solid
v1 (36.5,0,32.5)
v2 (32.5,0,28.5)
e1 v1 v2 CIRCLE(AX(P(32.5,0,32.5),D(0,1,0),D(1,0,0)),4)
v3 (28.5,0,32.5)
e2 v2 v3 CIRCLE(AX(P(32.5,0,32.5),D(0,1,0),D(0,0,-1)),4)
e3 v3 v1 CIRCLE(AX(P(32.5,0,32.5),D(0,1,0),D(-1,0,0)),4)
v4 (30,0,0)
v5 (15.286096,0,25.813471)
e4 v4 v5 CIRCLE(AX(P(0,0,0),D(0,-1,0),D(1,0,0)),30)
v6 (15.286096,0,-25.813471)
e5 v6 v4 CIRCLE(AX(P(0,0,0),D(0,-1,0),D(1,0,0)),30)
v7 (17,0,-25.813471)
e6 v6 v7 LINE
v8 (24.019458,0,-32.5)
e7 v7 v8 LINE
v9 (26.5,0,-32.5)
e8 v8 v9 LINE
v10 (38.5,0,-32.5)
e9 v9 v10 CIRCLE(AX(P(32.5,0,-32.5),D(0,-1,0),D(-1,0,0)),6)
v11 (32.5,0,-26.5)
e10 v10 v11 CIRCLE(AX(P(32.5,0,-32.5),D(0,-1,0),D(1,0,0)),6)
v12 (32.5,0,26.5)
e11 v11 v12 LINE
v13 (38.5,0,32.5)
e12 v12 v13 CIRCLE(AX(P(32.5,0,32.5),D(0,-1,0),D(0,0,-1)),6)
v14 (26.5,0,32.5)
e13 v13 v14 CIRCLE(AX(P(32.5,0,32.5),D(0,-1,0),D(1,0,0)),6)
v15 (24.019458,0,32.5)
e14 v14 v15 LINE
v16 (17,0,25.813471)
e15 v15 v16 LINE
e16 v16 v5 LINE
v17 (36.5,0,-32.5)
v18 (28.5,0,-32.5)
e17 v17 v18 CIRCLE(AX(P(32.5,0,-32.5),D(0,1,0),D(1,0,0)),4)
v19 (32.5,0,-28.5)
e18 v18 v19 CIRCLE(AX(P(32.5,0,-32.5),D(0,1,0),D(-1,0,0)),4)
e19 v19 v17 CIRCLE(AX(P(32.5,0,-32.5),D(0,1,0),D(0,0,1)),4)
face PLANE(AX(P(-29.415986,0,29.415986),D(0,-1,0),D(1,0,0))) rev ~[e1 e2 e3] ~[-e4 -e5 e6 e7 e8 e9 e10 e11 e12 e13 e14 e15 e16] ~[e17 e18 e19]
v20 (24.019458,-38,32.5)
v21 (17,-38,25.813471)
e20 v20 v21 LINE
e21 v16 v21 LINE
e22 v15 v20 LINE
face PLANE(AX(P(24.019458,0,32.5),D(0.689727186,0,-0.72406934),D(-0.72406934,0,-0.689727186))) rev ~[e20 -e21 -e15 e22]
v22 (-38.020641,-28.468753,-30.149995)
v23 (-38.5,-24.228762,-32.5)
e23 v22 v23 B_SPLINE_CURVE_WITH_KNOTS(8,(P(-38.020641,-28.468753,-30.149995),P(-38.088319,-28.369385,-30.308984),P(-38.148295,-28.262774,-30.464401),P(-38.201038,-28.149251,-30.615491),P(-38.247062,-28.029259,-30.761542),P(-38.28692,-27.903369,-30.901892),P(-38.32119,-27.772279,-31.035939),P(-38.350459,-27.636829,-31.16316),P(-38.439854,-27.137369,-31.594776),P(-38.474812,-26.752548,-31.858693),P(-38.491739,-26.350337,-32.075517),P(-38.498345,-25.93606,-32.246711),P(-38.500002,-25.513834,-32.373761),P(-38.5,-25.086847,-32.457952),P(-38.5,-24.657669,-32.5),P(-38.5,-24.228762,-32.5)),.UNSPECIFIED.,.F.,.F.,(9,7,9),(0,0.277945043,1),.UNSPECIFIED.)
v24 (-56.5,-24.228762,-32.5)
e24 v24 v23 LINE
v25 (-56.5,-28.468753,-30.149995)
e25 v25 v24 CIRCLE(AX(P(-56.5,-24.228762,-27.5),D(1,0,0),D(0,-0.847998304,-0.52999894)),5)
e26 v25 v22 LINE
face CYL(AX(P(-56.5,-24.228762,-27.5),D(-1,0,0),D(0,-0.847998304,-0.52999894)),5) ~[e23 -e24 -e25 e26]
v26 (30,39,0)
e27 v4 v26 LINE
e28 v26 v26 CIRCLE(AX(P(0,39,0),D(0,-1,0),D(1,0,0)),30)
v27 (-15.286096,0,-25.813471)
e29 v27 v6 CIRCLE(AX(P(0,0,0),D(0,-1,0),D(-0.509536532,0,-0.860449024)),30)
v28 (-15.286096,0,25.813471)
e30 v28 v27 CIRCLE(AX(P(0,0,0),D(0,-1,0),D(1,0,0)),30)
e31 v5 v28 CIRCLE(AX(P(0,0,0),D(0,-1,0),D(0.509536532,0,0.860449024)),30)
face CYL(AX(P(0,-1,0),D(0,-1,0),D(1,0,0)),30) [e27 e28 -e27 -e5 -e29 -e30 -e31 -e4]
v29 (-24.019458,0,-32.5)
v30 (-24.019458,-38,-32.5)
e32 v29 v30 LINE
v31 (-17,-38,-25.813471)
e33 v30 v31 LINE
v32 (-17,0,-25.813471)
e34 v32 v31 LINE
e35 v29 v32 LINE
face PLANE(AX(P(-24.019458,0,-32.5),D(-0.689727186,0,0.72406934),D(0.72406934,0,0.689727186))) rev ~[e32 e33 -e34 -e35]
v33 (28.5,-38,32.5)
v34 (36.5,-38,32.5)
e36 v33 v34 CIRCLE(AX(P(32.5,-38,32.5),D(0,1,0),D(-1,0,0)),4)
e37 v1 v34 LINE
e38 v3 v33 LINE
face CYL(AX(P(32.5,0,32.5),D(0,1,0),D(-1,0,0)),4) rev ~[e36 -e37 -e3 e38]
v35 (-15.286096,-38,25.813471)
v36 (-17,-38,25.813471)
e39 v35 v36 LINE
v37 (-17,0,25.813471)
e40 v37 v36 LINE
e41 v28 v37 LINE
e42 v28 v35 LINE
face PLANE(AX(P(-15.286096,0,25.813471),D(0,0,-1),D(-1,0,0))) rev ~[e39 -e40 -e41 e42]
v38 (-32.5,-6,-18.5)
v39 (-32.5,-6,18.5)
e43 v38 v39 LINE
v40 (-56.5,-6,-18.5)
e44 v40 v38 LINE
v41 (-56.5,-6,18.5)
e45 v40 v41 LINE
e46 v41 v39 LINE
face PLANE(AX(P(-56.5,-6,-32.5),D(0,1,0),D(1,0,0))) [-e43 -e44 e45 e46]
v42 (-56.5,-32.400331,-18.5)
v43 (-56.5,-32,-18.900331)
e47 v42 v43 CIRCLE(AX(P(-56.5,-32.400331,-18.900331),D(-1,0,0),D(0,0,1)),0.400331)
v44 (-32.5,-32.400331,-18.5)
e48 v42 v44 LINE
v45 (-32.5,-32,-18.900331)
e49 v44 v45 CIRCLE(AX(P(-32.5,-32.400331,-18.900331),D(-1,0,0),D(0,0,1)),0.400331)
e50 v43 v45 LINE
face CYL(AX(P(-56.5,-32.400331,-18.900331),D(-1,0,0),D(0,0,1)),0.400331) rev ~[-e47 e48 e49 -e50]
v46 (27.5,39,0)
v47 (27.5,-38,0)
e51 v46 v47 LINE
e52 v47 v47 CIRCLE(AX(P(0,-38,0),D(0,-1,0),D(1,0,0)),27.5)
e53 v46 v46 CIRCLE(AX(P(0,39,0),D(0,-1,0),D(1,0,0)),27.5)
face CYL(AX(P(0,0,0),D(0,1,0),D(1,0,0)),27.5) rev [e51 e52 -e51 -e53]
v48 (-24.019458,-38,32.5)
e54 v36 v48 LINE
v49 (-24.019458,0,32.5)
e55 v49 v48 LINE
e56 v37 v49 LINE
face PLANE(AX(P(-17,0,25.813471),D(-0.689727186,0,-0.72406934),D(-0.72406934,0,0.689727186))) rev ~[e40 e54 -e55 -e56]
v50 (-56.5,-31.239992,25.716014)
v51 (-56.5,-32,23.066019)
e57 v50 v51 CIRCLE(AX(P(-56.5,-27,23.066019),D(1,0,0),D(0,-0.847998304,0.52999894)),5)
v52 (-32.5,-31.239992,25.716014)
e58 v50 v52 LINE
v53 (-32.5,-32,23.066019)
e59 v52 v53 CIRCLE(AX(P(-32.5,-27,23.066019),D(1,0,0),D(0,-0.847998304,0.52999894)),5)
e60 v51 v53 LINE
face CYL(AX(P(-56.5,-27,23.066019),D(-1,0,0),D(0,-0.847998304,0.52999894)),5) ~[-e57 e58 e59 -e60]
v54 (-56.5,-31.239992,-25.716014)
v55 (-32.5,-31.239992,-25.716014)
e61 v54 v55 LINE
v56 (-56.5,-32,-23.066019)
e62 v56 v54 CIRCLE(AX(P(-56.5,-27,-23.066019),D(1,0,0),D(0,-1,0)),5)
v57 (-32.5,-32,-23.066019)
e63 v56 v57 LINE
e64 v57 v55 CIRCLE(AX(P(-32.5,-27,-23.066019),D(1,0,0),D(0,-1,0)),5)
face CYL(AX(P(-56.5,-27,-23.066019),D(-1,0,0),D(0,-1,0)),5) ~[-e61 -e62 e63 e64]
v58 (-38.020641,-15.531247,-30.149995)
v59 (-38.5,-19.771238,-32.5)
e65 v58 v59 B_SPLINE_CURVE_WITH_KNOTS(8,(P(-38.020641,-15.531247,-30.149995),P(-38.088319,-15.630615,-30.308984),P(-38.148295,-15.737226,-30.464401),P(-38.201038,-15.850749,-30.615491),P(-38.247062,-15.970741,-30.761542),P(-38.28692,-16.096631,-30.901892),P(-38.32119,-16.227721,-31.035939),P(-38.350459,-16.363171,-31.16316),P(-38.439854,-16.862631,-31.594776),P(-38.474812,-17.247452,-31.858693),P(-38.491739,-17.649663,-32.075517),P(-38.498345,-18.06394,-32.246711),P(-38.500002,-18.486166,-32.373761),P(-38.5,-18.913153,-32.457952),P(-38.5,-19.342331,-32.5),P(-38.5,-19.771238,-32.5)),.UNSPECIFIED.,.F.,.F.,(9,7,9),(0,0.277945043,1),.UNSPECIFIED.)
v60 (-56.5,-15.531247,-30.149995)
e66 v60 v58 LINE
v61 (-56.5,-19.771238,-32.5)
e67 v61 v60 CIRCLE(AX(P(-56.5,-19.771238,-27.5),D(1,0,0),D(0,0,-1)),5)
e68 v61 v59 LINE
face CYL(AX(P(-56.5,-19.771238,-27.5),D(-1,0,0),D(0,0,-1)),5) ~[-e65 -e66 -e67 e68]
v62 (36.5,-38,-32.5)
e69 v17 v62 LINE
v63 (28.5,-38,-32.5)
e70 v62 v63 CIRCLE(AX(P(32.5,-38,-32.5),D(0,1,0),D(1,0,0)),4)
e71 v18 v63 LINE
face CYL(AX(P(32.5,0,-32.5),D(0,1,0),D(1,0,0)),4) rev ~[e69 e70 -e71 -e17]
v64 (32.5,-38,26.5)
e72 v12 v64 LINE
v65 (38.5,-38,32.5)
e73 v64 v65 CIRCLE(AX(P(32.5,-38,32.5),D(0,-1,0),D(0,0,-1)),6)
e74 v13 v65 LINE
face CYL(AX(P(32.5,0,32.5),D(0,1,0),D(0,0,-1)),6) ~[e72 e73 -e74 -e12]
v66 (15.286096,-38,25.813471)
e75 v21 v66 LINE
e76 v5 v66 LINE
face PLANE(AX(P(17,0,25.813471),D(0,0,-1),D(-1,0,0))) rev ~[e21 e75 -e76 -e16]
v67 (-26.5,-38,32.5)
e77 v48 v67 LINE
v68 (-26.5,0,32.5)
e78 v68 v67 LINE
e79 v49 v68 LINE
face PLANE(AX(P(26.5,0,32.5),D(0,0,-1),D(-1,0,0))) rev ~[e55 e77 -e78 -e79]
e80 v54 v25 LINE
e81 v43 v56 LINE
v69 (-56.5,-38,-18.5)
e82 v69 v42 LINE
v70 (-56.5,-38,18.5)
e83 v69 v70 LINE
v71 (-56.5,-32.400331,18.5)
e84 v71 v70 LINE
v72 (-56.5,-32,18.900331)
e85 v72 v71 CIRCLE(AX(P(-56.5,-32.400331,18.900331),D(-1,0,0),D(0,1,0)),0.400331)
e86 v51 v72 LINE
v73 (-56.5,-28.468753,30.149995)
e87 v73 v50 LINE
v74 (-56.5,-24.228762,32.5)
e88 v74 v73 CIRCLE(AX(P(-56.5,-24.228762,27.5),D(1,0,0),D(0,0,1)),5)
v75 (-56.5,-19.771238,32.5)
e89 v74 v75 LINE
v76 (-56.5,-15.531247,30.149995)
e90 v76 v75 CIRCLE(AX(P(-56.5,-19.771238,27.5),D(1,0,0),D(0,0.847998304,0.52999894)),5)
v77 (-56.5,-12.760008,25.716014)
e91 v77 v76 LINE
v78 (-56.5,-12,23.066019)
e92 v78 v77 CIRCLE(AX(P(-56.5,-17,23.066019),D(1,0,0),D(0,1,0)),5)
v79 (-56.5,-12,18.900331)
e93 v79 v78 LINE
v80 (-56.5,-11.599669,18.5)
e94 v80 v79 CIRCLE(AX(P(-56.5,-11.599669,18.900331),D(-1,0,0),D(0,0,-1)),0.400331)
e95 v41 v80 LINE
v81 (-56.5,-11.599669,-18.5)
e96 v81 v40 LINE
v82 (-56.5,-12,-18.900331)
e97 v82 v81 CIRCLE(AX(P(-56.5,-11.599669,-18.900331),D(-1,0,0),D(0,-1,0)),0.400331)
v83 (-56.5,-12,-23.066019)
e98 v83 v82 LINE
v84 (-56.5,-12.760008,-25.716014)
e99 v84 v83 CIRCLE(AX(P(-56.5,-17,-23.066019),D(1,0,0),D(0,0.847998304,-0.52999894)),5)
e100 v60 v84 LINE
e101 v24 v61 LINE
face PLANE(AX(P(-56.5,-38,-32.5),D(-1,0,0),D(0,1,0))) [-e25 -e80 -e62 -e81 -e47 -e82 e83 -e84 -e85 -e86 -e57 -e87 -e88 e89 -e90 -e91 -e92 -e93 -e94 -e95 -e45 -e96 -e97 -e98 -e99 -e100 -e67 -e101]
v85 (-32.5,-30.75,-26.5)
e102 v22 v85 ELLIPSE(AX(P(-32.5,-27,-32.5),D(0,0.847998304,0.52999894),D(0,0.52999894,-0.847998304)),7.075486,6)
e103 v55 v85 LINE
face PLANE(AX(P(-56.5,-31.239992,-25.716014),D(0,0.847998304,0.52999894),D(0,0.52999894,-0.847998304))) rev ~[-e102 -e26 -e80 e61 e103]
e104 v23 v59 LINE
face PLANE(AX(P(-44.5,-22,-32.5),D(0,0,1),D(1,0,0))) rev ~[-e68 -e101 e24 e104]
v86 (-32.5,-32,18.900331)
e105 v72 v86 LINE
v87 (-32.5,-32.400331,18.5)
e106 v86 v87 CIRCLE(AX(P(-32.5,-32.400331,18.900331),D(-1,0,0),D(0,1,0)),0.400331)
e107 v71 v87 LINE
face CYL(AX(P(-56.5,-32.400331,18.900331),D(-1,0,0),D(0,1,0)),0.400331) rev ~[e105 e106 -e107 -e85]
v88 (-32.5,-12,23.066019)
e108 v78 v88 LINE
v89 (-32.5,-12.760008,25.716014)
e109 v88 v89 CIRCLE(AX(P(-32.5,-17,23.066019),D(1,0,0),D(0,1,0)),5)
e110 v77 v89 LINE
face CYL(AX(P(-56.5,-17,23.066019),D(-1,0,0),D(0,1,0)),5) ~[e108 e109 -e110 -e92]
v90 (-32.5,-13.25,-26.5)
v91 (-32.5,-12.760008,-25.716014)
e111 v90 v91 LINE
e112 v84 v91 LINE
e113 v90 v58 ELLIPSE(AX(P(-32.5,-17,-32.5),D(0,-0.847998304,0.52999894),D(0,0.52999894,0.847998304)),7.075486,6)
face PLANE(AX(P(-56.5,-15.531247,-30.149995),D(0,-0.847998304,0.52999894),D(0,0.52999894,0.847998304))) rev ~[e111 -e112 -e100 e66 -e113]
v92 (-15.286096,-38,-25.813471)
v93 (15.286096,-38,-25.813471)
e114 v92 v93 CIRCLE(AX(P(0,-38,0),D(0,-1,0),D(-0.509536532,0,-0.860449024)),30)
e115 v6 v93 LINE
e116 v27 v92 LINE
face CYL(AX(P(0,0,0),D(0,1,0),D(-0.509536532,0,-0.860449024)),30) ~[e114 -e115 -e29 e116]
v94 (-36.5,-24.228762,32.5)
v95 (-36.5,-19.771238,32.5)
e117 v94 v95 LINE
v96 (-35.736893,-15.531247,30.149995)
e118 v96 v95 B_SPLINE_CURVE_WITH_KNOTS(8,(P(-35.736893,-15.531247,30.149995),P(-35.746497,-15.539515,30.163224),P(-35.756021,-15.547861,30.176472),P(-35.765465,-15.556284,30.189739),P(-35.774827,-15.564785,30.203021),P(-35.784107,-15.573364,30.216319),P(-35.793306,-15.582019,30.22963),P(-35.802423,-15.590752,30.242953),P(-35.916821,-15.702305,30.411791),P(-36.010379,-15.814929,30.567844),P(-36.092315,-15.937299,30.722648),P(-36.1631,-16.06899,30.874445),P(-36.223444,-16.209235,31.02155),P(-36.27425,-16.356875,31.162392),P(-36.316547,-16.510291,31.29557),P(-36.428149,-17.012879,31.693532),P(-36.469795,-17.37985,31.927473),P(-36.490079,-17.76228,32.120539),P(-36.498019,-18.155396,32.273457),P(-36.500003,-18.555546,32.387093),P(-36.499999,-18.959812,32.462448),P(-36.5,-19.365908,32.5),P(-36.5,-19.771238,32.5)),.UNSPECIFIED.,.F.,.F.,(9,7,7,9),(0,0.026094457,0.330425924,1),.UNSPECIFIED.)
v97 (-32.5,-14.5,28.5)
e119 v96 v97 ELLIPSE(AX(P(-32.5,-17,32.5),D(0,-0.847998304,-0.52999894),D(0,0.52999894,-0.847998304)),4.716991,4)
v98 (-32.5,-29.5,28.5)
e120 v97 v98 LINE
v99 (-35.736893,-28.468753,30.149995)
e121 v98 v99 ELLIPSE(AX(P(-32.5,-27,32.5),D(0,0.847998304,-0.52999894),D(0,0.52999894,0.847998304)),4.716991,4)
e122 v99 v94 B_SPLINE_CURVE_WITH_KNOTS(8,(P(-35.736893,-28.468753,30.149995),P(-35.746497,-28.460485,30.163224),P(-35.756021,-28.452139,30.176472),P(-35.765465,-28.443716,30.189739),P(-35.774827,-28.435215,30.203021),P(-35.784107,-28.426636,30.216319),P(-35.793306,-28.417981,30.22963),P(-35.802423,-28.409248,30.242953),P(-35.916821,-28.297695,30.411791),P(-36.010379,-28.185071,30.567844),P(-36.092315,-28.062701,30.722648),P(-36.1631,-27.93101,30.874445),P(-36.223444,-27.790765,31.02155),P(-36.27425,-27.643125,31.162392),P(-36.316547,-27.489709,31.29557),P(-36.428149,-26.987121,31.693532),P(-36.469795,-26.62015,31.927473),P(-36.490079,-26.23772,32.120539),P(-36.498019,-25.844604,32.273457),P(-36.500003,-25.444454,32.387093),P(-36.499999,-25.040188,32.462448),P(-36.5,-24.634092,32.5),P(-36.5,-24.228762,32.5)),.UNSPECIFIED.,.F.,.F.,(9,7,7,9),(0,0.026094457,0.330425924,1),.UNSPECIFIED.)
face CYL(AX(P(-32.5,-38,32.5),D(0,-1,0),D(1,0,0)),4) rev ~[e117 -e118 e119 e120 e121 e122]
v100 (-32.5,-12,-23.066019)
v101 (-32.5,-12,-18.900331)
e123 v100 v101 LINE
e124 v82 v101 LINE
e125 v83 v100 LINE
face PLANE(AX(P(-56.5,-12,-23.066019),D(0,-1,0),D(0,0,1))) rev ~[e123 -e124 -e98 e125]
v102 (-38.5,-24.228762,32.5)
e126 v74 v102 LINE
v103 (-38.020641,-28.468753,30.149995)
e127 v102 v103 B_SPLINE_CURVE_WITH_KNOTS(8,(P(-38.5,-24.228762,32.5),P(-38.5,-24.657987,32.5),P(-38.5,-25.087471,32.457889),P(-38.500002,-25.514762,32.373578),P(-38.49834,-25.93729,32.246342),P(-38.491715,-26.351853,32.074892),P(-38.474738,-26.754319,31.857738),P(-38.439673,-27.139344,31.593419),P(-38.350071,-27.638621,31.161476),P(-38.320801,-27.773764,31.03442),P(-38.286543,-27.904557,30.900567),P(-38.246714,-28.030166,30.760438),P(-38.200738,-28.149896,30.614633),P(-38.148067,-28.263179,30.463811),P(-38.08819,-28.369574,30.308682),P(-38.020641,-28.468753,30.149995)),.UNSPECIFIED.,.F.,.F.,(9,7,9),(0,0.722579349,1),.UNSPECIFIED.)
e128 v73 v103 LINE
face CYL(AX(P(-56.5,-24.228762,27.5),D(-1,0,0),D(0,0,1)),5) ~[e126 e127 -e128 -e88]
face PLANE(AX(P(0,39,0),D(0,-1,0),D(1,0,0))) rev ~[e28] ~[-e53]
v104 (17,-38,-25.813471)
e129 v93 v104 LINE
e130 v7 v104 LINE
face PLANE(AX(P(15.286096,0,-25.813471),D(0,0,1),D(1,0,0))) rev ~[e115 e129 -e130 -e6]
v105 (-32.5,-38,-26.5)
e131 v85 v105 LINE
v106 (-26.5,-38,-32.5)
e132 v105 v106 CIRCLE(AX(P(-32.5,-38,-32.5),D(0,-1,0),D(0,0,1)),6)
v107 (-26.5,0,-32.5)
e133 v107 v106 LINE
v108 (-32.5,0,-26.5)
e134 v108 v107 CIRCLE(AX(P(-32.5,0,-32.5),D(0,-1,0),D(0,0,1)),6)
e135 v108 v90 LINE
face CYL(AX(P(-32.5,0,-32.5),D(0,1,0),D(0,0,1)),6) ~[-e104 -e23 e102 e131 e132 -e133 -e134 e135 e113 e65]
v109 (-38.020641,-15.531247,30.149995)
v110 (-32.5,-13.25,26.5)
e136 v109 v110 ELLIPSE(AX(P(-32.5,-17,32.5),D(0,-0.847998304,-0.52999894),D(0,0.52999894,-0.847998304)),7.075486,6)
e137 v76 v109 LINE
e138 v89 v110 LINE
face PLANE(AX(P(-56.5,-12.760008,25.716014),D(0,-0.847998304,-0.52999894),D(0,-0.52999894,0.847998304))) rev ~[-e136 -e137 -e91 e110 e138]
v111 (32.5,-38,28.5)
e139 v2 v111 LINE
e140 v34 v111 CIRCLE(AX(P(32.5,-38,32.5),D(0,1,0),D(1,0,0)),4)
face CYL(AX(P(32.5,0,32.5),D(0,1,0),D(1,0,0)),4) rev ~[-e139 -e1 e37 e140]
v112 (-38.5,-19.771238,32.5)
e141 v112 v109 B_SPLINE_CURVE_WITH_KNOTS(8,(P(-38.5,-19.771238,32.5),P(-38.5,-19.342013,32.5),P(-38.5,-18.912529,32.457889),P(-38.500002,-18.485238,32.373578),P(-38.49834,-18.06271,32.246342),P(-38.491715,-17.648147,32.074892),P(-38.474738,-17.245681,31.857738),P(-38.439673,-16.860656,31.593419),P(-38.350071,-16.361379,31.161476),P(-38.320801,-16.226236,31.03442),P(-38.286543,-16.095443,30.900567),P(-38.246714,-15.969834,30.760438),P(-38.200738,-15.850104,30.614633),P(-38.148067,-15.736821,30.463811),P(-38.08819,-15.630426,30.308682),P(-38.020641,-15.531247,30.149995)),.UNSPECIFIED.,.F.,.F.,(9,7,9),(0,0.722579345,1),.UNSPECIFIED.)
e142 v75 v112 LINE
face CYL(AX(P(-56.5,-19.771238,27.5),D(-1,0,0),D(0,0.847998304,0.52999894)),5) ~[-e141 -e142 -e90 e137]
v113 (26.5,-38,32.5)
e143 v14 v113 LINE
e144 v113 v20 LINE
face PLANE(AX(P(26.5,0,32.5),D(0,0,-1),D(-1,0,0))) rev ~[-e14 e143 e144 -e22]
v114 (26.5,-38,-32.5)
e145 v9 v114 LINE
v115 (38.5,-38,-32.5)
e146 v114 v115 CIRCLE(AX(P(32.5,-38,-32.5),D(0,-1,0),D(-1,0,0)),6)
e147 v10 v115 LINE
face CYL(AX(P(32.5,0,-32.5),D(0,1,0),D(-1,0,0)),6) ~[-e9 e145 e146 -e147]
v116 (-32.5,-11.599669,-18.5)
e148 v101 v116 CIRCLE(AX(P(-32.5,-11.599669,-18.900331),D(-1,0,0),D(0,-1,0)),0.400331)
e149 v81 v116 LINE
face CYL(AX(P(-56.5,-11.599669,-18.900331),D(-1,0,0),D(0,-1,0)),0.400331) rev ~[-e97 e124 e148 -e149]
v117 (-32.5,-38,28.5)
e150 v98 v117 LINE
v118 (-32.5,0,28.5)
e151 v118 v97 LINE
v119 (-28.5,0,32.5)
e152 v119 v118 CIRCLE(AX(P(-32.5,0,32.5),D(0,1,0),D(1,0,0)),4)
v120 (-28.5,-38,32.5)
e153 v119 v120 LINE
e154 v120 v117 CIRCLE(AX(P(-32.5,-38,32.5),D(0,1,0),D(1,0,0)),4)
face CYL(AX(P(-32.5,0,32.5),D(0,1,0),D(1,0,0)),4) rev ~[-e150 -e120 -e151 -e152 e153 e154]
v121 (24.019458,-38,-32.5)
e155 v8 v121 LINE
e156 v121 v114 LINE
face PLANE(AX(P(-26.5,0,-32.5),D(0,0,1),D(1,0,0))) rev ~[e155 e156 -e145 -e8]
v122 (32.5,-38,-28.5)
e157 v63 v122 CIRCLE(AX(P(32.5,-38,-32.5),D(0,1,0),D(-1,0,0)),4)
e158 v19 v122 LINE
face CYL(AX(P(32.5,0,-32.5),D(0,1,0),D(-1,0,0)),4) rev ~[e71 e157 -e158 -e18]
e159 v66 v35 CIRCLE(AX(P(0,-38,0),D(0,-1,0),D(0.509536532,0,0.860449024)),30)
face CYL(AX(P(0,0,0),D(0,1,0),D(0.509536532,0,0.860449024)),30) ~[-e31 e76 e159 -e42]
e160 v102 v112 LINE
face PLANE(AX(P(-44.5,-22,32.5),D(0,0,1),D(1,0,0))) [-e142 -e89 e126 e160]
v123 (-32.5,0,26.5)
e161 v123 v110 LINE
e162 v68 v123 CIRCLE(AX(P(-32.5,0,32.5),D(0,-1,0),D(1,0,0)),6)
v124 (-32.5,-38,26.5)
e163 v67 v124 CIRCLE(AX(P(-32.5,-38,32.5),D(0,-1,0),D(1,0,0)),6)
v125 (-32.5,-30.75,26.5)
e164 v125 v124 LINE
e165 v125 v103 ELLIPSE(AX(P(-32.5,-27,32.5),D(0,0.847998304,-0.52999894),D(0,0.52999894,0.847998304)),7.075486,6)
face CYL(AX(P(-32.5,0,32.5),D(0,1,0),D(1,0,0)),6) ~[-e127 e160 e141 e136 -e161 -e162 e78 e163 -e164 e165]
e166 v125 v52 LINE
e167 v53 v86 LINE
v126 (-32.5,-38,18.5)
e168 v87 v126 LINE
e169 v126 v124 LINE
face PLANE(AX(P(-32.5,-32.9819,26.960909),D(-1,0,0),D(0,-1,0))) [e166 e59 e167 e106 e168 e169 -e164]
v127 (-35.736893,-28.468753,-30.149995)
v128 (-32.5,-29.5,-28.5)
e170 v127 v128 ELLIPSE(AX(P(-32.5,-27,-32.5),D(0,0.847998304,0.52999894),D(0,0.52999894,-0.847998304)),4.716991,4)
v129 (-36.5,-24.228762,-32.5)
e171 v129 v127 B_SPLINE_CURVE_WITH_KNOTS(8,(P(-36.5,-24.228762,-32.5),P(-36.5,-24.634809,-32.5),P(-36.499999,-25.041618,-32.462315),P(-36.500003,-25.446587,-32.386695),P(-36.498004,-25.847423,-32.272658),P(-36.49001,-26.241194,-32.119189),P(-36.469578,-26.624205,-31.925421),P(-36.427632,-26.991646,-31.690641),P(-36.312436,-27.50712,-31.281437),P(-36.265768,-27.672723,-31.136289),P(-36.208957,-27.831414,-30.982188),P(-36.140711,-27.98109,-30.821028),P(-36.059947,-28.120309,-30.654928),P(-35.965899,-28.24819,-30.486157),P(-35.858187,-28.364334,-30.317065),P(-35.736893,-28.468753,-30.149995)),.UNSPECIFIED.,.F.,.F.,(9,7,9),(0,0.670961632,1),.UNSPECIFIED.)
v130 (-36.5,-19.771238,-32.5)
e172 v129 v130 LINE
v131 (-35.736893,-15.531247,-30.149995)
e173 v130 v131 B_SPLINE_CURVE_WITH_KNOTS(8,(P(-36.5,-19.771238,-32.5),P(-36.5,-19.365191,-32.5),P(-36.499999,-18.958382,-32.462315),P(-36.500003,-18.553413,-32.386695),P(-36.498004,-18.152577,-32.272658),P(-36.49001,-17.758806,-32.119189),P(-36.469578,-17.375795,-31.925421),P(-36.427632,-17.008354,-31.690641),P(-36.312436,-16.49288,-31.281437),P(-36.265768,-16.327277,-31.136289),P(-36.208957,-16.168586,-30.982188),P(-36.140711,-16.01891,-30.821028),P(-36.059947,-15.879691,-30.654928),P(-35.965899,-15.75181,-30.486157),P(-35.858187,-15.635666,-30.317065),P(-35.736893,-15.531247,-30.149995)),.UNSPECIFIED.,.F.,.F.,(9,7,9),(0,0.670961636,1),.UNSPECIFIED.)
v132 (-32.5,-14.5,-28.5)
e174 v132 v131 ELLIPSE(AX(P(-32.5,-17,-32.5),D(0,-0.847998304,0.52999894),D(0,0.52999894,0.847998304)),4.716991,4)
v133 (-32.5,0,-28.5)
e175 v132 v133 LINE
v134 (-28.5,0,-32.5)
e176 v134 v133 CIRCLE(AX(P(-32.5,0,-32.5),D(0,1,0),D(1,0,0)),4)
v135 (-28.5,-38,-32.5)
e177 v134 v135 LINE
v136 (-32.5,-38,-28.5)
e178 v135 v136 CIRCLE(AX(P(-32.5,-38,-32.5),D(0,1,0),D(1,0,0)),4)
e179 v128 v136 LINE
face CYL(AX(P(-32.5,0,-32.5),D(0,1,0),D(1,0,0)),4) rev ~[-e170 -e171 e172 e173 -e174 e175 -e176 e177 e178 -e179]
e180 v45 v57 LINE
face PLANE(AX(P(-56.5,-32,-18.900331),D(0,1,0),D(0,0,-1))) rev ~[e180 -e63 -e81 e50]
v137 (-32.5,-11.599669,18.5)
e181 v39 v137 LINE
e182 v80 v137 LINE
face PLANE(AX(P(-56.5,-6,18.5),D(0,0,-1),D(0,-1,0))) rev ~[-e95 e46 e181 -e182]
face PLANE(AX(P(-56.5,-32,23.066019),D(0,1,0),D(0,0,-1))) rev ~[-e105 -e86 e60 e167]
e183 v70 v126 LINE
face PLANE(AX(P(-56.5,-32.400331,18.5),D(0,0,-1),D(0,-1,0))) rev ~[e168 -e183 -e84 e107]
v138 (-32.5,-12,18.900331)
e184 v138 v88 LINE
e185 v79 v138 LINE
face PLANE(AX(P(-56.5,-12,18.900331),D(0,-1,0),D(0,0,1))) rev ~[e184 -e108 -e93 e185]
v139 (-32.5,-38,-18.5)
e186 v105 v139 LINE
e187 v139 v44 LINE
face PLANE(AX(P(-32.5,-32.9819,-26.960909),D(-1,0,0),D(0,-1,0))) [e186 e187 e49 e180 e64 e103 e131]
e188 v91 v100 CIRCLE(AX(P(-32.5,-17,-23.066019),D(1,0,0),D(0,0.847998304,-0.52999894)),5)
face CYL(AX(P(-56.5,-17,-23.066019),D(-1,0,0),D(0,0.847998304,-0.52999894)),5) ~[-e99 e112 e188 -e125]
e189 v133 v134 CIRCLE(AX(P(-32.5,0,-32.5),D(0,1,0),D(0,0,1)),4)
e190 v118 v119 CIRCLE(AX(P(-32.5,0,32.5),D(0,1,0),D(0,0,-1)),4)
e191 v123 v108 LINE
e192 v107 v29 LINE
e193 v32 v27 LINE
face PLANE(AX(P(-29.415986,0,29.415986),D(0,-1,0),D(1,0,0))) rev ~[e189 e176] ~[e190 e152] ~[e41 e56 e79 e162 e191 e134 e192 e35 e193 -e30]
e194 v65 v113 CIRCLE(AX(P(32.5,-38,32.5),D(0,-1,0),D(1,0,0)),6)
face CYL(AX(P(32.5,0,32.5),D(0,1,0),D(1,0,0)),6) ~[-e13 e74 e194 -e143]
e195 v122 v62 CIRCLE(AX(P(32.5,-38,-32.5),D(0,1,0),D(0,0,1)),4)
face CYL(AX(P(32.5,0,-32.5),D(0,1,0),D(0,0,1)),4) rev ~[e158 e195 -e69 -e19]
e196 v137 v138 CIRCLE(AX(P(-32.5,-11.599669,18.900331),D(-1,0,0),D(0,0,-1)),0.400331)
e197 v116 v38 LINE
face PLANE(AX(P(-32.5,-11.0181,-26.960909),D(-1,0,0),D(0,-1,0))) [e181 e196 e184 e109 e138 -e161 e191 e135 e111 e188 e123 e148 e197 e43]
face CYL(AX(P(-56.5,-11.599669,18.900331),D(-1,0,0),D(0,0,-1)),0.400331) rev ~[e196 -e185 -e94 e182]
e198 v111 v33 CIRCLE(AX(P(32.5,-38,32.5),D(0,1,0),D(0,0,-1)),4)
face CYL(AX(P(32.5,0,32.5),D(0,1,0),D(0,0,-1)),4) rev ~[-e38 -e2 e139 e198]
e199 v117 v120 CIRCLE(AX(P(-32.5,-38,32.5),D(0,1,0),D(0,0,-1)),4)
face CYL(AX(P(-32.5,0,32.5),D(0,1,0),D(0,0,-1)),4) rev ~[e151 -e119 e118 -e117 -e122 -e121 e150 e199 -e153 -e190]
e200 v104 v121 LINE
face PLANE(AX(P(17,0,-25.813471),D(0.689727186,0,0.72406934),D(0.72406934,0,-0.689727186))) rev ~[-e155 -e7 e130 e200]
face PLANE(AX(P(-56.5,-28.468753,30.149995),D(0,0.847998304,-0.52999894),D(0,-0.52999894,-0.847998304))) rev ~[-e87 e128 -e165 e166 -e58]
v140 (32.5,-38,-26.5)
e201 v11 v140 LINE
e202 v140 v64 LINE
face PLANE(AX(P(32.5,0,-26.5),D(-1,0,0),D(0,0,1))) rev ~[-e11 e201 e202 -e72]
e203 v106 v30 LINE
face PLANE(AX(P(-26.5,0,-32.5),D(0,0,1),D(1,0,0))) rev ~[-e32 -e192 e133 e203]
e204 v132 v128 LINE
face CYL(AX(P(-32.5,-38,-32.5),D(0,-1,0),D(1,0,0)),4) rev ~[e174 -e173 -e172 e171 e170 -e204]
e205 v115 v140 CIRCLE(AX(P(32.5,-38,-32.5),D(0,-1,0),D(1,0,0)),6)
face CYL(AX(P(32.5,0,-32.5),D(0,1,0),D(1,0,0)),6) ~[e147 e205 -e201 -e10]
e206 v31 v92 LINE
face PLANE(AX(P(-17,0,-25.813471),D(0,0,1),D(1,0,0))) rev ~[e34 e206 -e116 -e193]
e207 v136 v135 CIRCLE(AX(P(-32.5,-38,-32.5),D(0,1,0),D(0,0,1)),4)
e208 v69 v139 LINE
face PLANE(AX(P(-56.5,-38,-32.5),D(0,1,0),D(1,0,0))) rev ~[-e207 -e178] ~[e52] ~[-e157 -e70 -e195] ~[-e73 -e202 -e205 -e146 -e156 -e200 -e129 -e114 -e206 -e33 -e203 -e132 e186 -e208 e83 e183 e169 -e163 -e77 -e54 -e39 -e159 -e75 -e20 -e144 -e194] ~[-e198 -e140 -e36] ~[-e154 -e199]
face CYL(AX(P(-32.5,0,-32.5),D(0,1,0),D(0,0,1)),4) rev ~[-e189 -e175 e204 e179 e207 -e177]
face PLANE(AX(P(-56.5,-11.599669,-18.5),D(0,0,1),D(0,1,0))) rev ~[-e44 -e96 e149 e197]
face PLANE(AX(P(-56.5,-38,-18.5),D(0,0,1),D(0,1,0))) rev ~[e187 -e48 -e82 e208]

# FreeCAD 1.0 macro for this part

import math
import FreeCAD as App
import Part
import Sketcher

V = App.Vector
Q = App.Units.Quantity


def add_polygon(sketch, points):
    """Adds a closed chain of lines whose ends are joined by coincident constraints."""
    first, n = sketch.GeometryCount, len(points)
    for a, b in zip(points, points[1:] + points[:1]):
        sketch.addGeometry(Part.LineSegment(App.Vector(*a, 0), App.Vector(*b, 0)), False)
    for i in range(n):
        sketch.addConstraint(Sketcher.Constraint("Coincident", first + i, 2, first + (i + 1) % n, 1))

doc = App.newDocument("Part")
body = doc.addObject("PartDesign::Body", "Body")

# Sketch on XZ plane
sketch1 = doc.addObject("Sketcher::SketchObject", "Sketch")
body.addObject(sketch1)
sketch1.AttachmentSupport = (doc.XZ_Plane, [""])
sketch1.MapMode = "FlatFace"
sketch1.addGeometry([
    Part.ArcOfCircle(Part.Circle(V(-32.5, 32.5, 0), V(0, 0, 1), 6), math.radians(0), math.radians(270)),  # 0
    Part.LineSegment(V(-32.5, 26.5, 0), V(-32.5, -26.5, 0)),  # 1
    Part.ArcOfCircle(Part.Circle(V(-32.5, -32.5, 0), V(0, 0, 1), 6), math.radians(90), math.radians(360)),  # 2
    Part.LineSegment(V(-26.5, -32.5, 0), V(26.5, -32.5, 0)),  # 3
    Part.ArcOfCircle(Part.Circle(V(32.5, -32.5, 0), V(0, 0, 1), 6), math.radians(180), math.radians(360)),  # 4
    Part.ArcOfCircle(Part.Circle(V(32.5, -32.5, 0), V(0, 0, 1), 6), math.radians(0), math.radians(90)),  # 5
    Part.LineSegment(V(32.5, -26.5, 0), V(32.5, 26.5, 0)),  # 6
    Part.ArcOfCircle(Part.Circle(V(32.5, 32.5, 0), V(0, 0, 1), 6), math.radians(-90), math.radians(0)),  # 7
    Part.ArcOfCircle(Part.Circle(V(32.5, 32.5, 0), V(0, 0, 1), 6), math.radians(0), math.radians(180)),  # 8
    Part.LineSegment(V(26.5, 32.5, 0), V(-26.5, 32.5, 0)),  # 9
    Part.ArcOfCircle(Part.Circle(V(-32.5, -32.5, 0), V(0, 0, 1), 4), math.radians(0), math.radians(90)),  # 10
    Part.ArcOfCircle(Part.Circle(V(-32.5, -32.5, 0), V(0, 0, 1), 4), math.radians(90), math.radians(360)),  # 11
    Part.ArcOfCircle(Part.Circle(V(32.5, -32.5, 0), V(0, 0, 1), 4), math.radians(90), math.radians(180)),  # 12
    Part.ArcOfCircle(Part.Circle(V(32.5, -32.5, 0), V(0, 0, 1), 4), math.radians(0), math.radians(90)),  # 13
    Part.ArcOfCircle(Part.Circle(V(32.5, -32.5, 0), V(0, 0, 1), 4), math.radians(180), math.radians(360)),  # 14
    Part.Circle(V(0, 0, 0), V(0, 0, 1), 27.5),  # 15
    Part.ArcOfCircle(Part.Circle(V(-32.5, 32.5, 0), V(0, 0, 1), 4), math.radians(-90), math.radians(0)),  # 16
    Part.ArcOfCircle(Part.Circle(V(-32.5, 32.5, 0), V(0, 0, 1), 4), math.radians(0), math.radians(270)),  # 17
    Part.ArcOfCircle(Part.Circle(V(32.5, 32.5, 0), V(0, 0, 1), 4), math.radians(180), math.radians(270)),  # 18
    Part.ArcOfCircle(Part.Circle(V(32.5, 32.5, 0), V(0, 0, 1), 4), math.radians(0), math.radians(180)),  # 19
    Part.ArcOfCircle(Part.Circle(V(32.5, 32.5, 0), V(0, 0, 1), 4), math.radians(-90), math.radians(0)),  # 20
], False)
sketch1.addConstraint([
    Sketcher.Constraint("Coincident", 0, 2, 1, 1),
    Sketcher.Constraint("Coincident", 1, 2, 2, 1),
    Sketcher.Constraint("Coincident", 2, 2, 3, 1),
    Sketcher.Constraint("Coincident", 3, 2, 4, 1),
    Sketcher.Constraint("Tangent", 4, 2, 5, 1),
    Sketcher.Constraint("Coincident", 5, 2, 6, 1),
    Sketcher.Constraint("Coincident", 6, 2, 7, 1),
    Sketcher.Constraint("Tangent", 7, 2, 8, 1),
    Sketcher.Constraint("Coincident", 8, 2, 9, 1),
    Sketcher.Constraint("Coincident", 9, 2, 0, 1),
    Sketcher.Constraint("Tangent", 10, 1, 11, 2),
    Sketcher.Constraint("Coincident", 11, 1, 10, 2),
    Sketcher.Constraint("Tangent", 12, 1, 13, 2),
    Sketcher.Constraint("Tangent", 13, 1, 14, 2),
    Sketcher.Constraint("Tangent", 14, 1, 12, 2),
    Sketcher.Constraint("Tangent", 16, 1, 17, 2),
    Sketcher.Constraint("Coincident", 17, 1, 16, 2),
    Sketcher.Constraint("Tangent", 18, 1, 19, 2),
    Sketcher.Constraint("Tangent", 19, 1, 20, 2),
    Sketcher.Constraint("Tangent", 20, 1, 18, 2),
    Sketcher.Constraint("Vertical", 1),
    Sketcher.Constraint("Horizontal", 3),
    Sketcher.Constraint("Vertical", 6),
    Sketcher.Constraint("Horizontal", 9),
    Sketcher.Constraint("Coincident", 15, 3, -1, 1),
    Sketcher.Constraint("Coincident", 10, 3, 2, 3),
    Sketcher.Constraint("Coincident", 12, 3, 4, 3),
    Sketcher.Constraint("Coincident", 16, 3, 0, 3),
    Sketcher.Constraint("Coincident", 18, 3, 7, 3),
    Sketcher.Constraint("Equal", 0, 2),
    Sketcher.Constraint("Equal", 2, 4),
    Sketcher.Constraint("Equal", 4, 5),
    Sketcher.Constraint("Equal", 5, 7),
    Sketcher.Constraint("Equal", 7, 8),
    Sketcher.Constraint("Equal", 11, 12),
    Sketcher.Constraint("Equal", 14, 16),
    Sketcher.Constraint("Equal", 17, 18),
    Sketcher.Constraint("Symmetric", 0, 3, 4, 3, -1, 1),
    Sketcher.Constraint("Symmetric", 2, 3, 7, 3, -1, 1),
    Sketcher.Constraint("Symmetric", 2, 3, 4, 3, -2),
    Sketcher.Constraint("Horizontal", 14, 3, 2, 2),
    Sketcher.Constraint("Horizontal", 3, 2, 4, 2),
    Sketcher.Constraint("Horizontal", 20, 3, 7, 2),
    Sketcher.Constraint("Horizontal", 7, 2, 8, 2),
    Sketcher.Constraint("Horizontal", 4, 2, 10, 1),
    Sketcher.Constraint("Horizontal", 10, 1, 13, 1),
    Sketcher.Constraint("Horizontal", 13, 1, 14, 1),
    Sketcher.Constraint("Horizontal", 9, 2, 17, 1),
    Sketcher.Constraint("Horizontal", 17, 1, 18, 1),
    Sketcher.Constraint("Horizontal", 18, 1, 19, 1),
    Sketcher.Constraint("Vertical", 17, 3, 0, 2),
    Sketcher.Constraint("Vertical", 20, 3, 5, 2),
    Sketcher.Constraint("Vertical", 1, 2, 11, 1),
    Sketcher.Constraint("Vertical", 6, 2, 12, 1),
    Sketcher.Constraint("Vertical", 11, 1, 16, 1),
    Sketcher.Constraint("Vertical", 12, 1, 20, 1),
    Sketcher.Constraint("Equal", 9, 1),
    Sketcher.Constraint("Diameter", 15, Q("55 mm")),
    Sketcher.Constraint("Radius", 0, Q("6 mm")),
    Sketcher.Constraint("Radius", 10, Q("4 mm")),
    Sketcher.Constraint("DistanceX", 3, 1, 3, 2, Q("53 mm")),
])
pad1 = doc.addObject("PartDesign::Pad", "Pad")
body.addObject(pad1)
pad1.Profile = sketch1
pad1.Length = 38

# Sketch on XZ plane
sketch2 = doc.addObject("Sketcher::SketchObject", "Sketch001")
body.addObject(sketch2)
sketch2.AttachmentSupport = (doc.XZ_Plane, [""])
sketch2.MapMode = "FlatFace"
sketch2.AttachmentOffset = App.Placement(V(0, 0, 1), App.Rotation())
sketch2.addGeometry([
    Part.Circle(V(0, 0, 0), V(0, 0, 1), 30),
    Part.Circle(V(0, 0, 0), V(0, 0, 1), 27.5),
], False)
sketch2.addConstraint([
    Sketcher.Constraint("Coincident", 0, 3, -1, 1),
    Sketcher.Constraint("Coincident", 1, 3, -1, 1),
    Sketcher.Constraint("Diameter", 0, Q("60 mm")),
    Sketcher.Constraint("Diameter", 1, Q("55 mm")),
])
pad2 = doc.addObject("PartDesign::Pad", "Pad001")
body.addObject(pad2)
pad2.Profile = sketch2
pad2.Length = 40
pad2.Reversed = True

# Sketch on XY plane
sketch3 = doc.addObject("Sketcher::SketchObject", "Sketch002")
body.addObject(sketch3)
sketch3.AttachmentSupport = (doc.XY_Plane, [""])
sketch3.MapMode = "FlatFace"
sketch3.AttachmentOffset = App.Placement(V(0, 0, -32.5), App.Rotation())
add_polygon(sketch3, [(-56.5, -6), (-56.5, -38), (-32.5, -38), (-32.5, -6)])  # lines 0-3
sketch3.addConstraint([
    Sketcher.Constraint("Vertical", 0),
    Sketcher.Constraint("Horizontal", 1),
    Sketcher.Constraint("Vertical", 2),
    Sketcher.Constraint("Horizontal", 3),
    Sketcher.Constraint("DistanceX", 1, 1, 1, 2, Q("24 mm")),
    Sketcher.Constraint("DistanceY", 0, 2, 0, 1, Q("32 mm")),
    Sketcher.Constraint("DistanceY", 0, 2, -1, 1, Q("38 mm")),
    Sketcher.Constraint("DistanceX", 0, 2, -1, 1, Q("56.5 mm")),
])
pad3 = doc.addObject("PartDesign::Pad", "Pad002")
body.addObject(pad3)
pad3.Profile = sketch3
pad3.Length = 65

# Sketch on YZ plane
sketch4 = doc.addObject("Sketcher::SketchObject", "Sketch003")
body.addObject(sketch4)
sketch4.AttachmentSupport = (doc.YZ_Plane, [""])
sketch4.MapMode = "FlatFace"
sketch4.AttachmentOffset = App.Placement(V(0, 0, -56.5), App.Rotation())
sketch4.addGeometry([
    Part.LineSegment(V(-11.599669, -18.5, 0), V(-6, -18.5, 0)),  # 0
    Part.LineSegment(V(-6, -18.5, 0), V(-6, -32.5, 0)),  # 1
    Part.LineSegment(V(-6, -32.5, 0), V(-19.771238, -32.5, 0)),  # 2
    Part.ArcOfCircle(Part.Circle(V(-19.771238, -27.5, 0), V(0, 0, 1), 5), math.radians(-90), math.radians(-32.005383)),  # 3
    Part.LineSegment(V(-15.531247, -30.149995, 0), V(-12.760008, -25.716014, 0)),  # 4
    Part.ArcOfCircle(Part.Circle(V(-17, -23.066019, 0), V(0, 0, 1), 5), math.radians(-32.005383), math.radians(0)),  # 5
    Part.LineSegment(V(-12, -23.066019, 0), V(-12, -18.900331, 0)),  # 6
    Part.ArcOfCircle(Part.Circle(V(-11.599669, -18.900331, 0), V(0, 0, 1), 0.400331), math.radians(90), math.radians(180)),  # 7
    Part.ArcOfCircle(Part.Circle(V(-24.228762, -27.5, 0), V(0, 0, 1), 5), math.radians(-147.994617), math.radians(-90)),  # 8
    Part.LineSegment(V(-24.228762, -32.5, 0), V(-38, -32.5, 0)),  # 9
    Part.LineSegment(V(-38, -32.5, 0), V(-38, -18.5, 0)),  # 10
    Part.LineSegment(V(-38, -18.5, 0), V(-32.400331, -18.5, 0)),  # 11
    Part.ArcOfCircle(Part.Circle(V(-32.400331, -18.900331, 0), V(0, 0, 1), 0.400331), math.radians(0), math.radians(90)),  # 12
    Part.LineSegment(V(-32, -18.900331, 0), V(-32, -23.066019, 0)),  # 13
    Part.ArcOfCircle(Part.Circle(V(-27, -23.066019, 0), V(0, 0, 1), 5), math.radians(180), math.radians(212.005383)),  # 14
    Part.LineSegment(V(-31.239992, -25.716014, 0), V(-28.468753, -30.149995, 0)),  # 15
    Part.LineSegment(V(-19.771238, 32.5, 0), V(-6, 32.5, 0)),  # 16
    Part.LineSegment(V(-6, 32.5, 0), V(-6, 18.5, 0)),  # 17
    Part.LineSegment(V(-6, 18.5, 0), V(-11.599669, 18.5, 0)),  # 18
    Part.ArcOfCircle(Part.Circle(V(-11.599669, 18.900331, 0), V(0, 0, 1), 0.400331), math.radians(-180), math.radians(-90)),  # 19
    Part.LineSegment(V(-12, 18.900331, 0), V(-12, 23.066019, 0)),  # 20
    Part.ArcOfCircle(Part.Circle(V(-17, 23.066019, 0), V(0, 0, 1), 5), math.radians(0), math.radians(32.005383)),  # 21
    Part.LineSegment(V(-12.760008, 25.716014, 0), V(-15.531247, 30.149995, 0)),  # 22
    Part.ArcOfCircle(Part.Circle(V(-19.771238, 27.5, 0), V(0, 0, 1), 5), math.radians(32.005383), math.radians(90)),  # 23
    Part.LineSegment(V(-38, 32.5, 0), V(-24.228762, 32.5, 0)),  # 24
    Part.ArcOfCircle(Part.Circle(V(-24.228762, 27.5, 0), V(0, 0, 1), 5), math.radians(90), math.radians(147.994617)),  # 25
    Part.LineSegment(V(-28.468753, 30.149995, 0), V(-31.239992, 25.716014, 0)),  # 26
    Part.ArcOfCircle(Part.Circle(V(-27, 23.066019, 0), V(0, 0, 1), 5), math.radians(147.994617), math.radians(180)),  # 27
    Part.LineSegment(V(-32, 23.066019, 0), V(-32, 18.900331, 0)),  # 28
    Part.ArcOfCircle(Part.Circle(V(-32.400331, 18.900331, 0), V(0, 0, 1), 0.400331), math.radians(-90), math.radians(0)),  # 29
    Part.LineSegment(V(-32.400331, 18.5, 0), V(-38, 18.5, 0)),  # 30
    Part.LineSegment(V(-38, 18.5, 0), V(-38, 32.5, 0)),  # 31
], False)
sketch4.addConstraint([
    Sketcher.Constraint("Coincident", 0, 2, 1, 1),
    Sketcher.Constraint("Coincident", 1, 2, 2, 1),
    Sketcher.Constraint("Tangent", 2, 2, 3, 1),
    Sketcher.Constraint("Tangent", 3, 2, 4, 1),
    Sketcher.Constraint("Tangent", 4, 2, 5, 1),
    Sketcher.Constraint("Tangent", 5, 2, 6, 1),
    Sketcher.Constraint("Tangent", 6, 2, 7, 2),
    Sketcher.Constraint("Tangent", 7, 1, 0, 1),
    Sketcher.Constraint("Tangent", 8, 2, 9, 1),
    Sketcher.Constraint("Coincident", 9, 2, 10, 1),
    Sketcher.Constraint("Coincident", 10, 2, 11, 1),
    Sketcher.Constraint("Tangent", 11, 2, 12, 2),
    Sketcher.Constraint("Tangent", 12, 1, 13, 1),
    Sketcher.Constraint("Tangent", 13, 2, 14, 1),
    Sketcher.Constraint("Tangent", 14, 2, 15, 1),
    Sketcher.Constraint("Tangent", 15, 2, 8, 1),
    Sketcher.Constraint("Coincident", 16, 2, 17, 1),
    Sketcher.Constraint("Coincident", 17, 2, 18, 1),
    Sketcher.Constraint("Tangent", 18, 2, 19, 2),
    Sketcher.Constraint("Tangent", 19, 1, 20, 1),
    Sketcher.Constraint("Tangent", 20, 2, 21, 1),
    Sketcher.Constraint("Tangent", 21, 2, 22, 1),
    Sketcher.Constraint("Tangent", 22, 2, 23, 1),
    Sketcher.Constraint("Tangent", 23, 2, 16, 1),
    Sketcher.Constraint("Tangent", 24, 2, 25, 1),
    Sketcher.Constraint("Tangent", 25, 2, 26, 1),
    Sketcher.Constraint("Tangent", 26, 2, 27, 1),
    Sketcher.Constraint("Tangent", 27, 2, 28, 1),
    Sketcher.Constraint("Tangent", 28, 2, 29, 2),
    Sketcher.Constraint("Tangent", 29, 1, 30, 1),
    Sketcher.Constraint("Coincident", 30, 2, 31, 1),
    Sketcher.Constraint("Coincident", 31, 2, 24, 1),
    Sketcher.Constraint("Horizontal", 0),
    Sketcher.Constraint("Vertical", 1),
    Sketcher.Constraint("Horizontal", 2),
    Sketcher.Constraint("Vertical", 6),
    Sketcher.Constraint("Horizontal", 9),
    Sketcher.Constraint("Vertical", 10),
    Sketcher.Constraint("Horizontal", 11),
    Sketcher.Constraint("Vertical", 13),
    Sketcher.Constraint("Horizontal", 16),
    Sketcher.Constraint("Vertical", 17),
    Sketcher.Constraint("Horizontal", 18),
    Sketcher.Constraint("Vertical", 20),
    Sketcher.Constraint("Horizontal", 24),
    Sketcher.Constraint("Vertical", 28),
    Sketcher.Constraint("Horizontal", 30),
    Sketcher.Constraint("Vertical", 31),
    Sketcher.Constraint("Equal", 3, 5),
    Sketcher.Constraint("Equal", 5, 8),
    Sketcher.Constraint("Equal", 7, 12),
    Sketcher.Constraint("Equal", 8, 14),
    Sketcher.Constraint("Equal", 12, 19),
    Sketcher.Constraint("Equal", 14, 21),
    Sketcher.Constraint("Equal", 21, 23),
    Sketcher.Constraint("Equal", 23, 25),
    Sketcher.Constraint("Equal", 25, 27),
    Sketcher.Constraint("Equal", 19, 29),
    Sketcher.Constraint("Symmetric", 7, 3, 19, 3, -1),
    Sketcher.Constraint("Symmetric", 3, 3, 23, 3, -1),
    Sketcher.Constraint("Symmetric", 8, 3, 25, 3, -1),
    Sketcher.Constraint("Symmetric", 14, 3, 27, 3, -1),
    Sketcher.Constraint("Symmetric", 10, 2, 30, 2, -1),
    Sketcher.Constraint("Parallel", 15, 22),
    Sketcher.Constraint("Parallel", 4, 26),
    Sketcher.Constraint("Horizontal", 3, 3, 8, 3),
    Sketcher.Constraint("Horizontal", 7, 3, 12, 3),
    Sketcher.Constraint("Horizontal", 5, 3, 14, 3),
    Sketcher.Constraint("Vertical", 1, 2, 16, 2),
    Sketcher.Constraint("Equal", 2, 9),
    Sketcher.Constraint("Radius", 3, Q("5 mm")),
    Sketcher.Constraint("DistanceY", 1, 2, 1, 1, Q("14 mm")),
    Sketcher.Constraint("DistanceX", 5, 3, -1, 1, Q("17 mm")),
    Sketcher.Constraint("DistanceX", 14, 3, -1, 1, Q("27 mm")),
    Sketcher.Constraint("DistanceX", 0, 2, -1, 1, Q("6 mm")),
    Sketcher.Constraint("DistanceY", 3, 3, -1, 1, Q("27.5 mm")),
    Sketcher.Constraint("Radius", 7, Q("0.400331 mm")),
    Sketcher.Constraint("DistanceX", 2, 2, 2, 1, Q("13.771238 mm")),
    Sketcher.Constraint("DistanceY", 6, 1, 6, 2, Q("4.165688 mm")),
])
pocket1 = doc.addObject("PartDesign::Pocket", "Pocket")
body.addObject(pocket1)
pocket1.Profile = sketch4
pocket1.Length = 24
pocket1.Reversed = True

# Sketch on XZ plane
sketch5 = doc.addObject("Sketcher::SketchObject", "Sketch004")
body.addObject(sketch5)
sketch5.AttachmentSupport = (doc.XZ_Plane, [""])
sketch5.MapMode = "FlatFace"
sketch5.addGeometry([
    Part.ArcOfCircle(Part.Circle(V(32.5, 32.5, 0), V(0, 0, 1), 6), math.radians(0), math.radians(180)),  # 0
    Part.LineSegment(V(26.5, 32.5, 0), V(28.5, 32.5, 0)),  # 1
    Part.ArcOfCircle(Part.Circle(V(32.5, 32.5, 0), V(0, 0, 1), 4), math.radians(0), math.radians(180)),  # 2
    Part.ArcOfCircle(Part.Circle(V(32.5, 32.5, 0), V(0, 0, 1), 4), math.radians(-90), math.radians(0)),  # 3
    Part.LineSegment(V(32.5, 28.5, 0), V(32.5, 26.5, 0)),  # 4
    Part.ArcOfCircle(Part.Circle(V(32.5, 32.5, 0), V(0, 0, 1), 6), math.radians(-90), math.radians(0)),  # 5
    Part.LineSegment(V(-28.5, 32.5, 0), V(-26.5, 32.5, 0)),  # 6
    Part.ArcOfCircle(Part.Circle(V(-32.5, 32.5, 0), V(0, 0, 1), 6), math.radians(0), math.radians(270)),  # 7
    Part.LineSegment(V(-32.5, 26.5, 0), V(-32.5, 28.5, 0)),  # 8
    Part.ArcOfCircle(Part.Circle(V(-32.5, 32.5, 0), V(0, 0, 1), 4), math.radians(0), math.radians(270)),  # 9
    Part.ArcOfCircle(Part.Circle(V(32.5, -32.5, 0), V(0, 0, 1), 6), math.radians(0), math.radians(90)),  # 10
    Part.LineSegment(V(32.5, -26.5, 0), V(32.5, -28.5, 0)),  # 11
    Part.ArcOfCircle(Part.Circle(V(32.5, -32.5, 0), V(0, 0, 1), 4), math.radians(0), math.radians(90)),  # 12
    Part.ArcOfCircle(Part.Circle(V(32.5, -32.5, 0), V(0, 0, 1), 4), math.radians(180), math.radians(360)),  # 13
    Part.LineSegment(V(28.5, -32.5, 0), V(26.5, -32.5, 0)),  # 14
    Part.ArcOfCircle(Part.Circle(V(32.5, -32.5, 0), V(0, 0, 1), 6), math.radians(180), math.radians(360)),  # 15
    Part.LineSegment(V(-32.5, -28.5, 0), V(-32.5, -26.5, 0)),  # 16
    Part.ArcOfCircle(Part.Circle(V(-32.5, -32.5, 0), V(0, 0, 1), 6), math.radians(90), math.radians(360)),  # 17
    Part.LineSegment(V(-26.5, -32.5, 0), V(-28.5, -32.5, 0)),  # 18
    Part.ArcOfCircle(Part.Circle(V(-32.5, -32.5, 0), V(0, 0, 1), 4), math.radians(90), math.radians(360)),  # 19
], False)
sketch5.addConstraint([
    Sketcher.Constraint("Coincident", 0, 2, 1, 1),
    Sketcher.Constraint("Coincident", 1, 2, 2, 2),
    Sketcher.Constraint("Tangent", 2, 1, 3, 2),
    Sketcher.Constraint("Coincident", 3, 1, 4, 1),
    Sketcher.Constraint("Coincident", 4, 2, 5, 1),
    Sketcher.Constraint("Tangent", 5, 2, 0, 1),
    Sketcher.Constraint("Coincident", 6, 2, 7, 1),
    Sketcher.Constraint("Coincident", 7, 2, 8, 1),
    Sketcher.Constraint("Coincident", 8, 2, 9, 2),
    Sketcher.Constraint("Coincident", 9, 1, 6, 1),
    Sketcher.Constraint("Coincident", 10, 2, 11, 1),
    Sketcher.Constraint("Coincident", 11, 2, 12, 2),
    Sketcher.Constraint("Tangent", 12, 1, 13, 2),
    Sketcher.Constraint("Coincident", 13, 1, 14, 1),
    Sketcher.Constraint("Coincident", 14, 2, 15, 1),
    Sketcher.Constraint("Tangent", 15, 2, 10, 1),
    Sketcher.Constraint("Coincident", 16, 2, 17, 1),
    Sketcher.Constraint("Coincident", 17, 2, 18, 1),
    Sketcher.Constraint("Coincident", 18, 2, 19, 2),
    Sketcher.Constraint("Coincident", 19, 1, 16, 1),
    Sketcher.Constraint("Horizontal", 1),
    Sketcher.Constraint("Vertical", 4),
    Sketcher.Constraint("Horizontal", 6),
    Sketcher.Constraint("Vertical", 8),
    Sketcher.Constraint("Vertical", 11),
    Sketcher.Constraint("Horizontal", 14),
    Sketcher.Constraint("Vertical", 16),
    Sketcher.Constraint("Horizontal", 18),
    Sketcher.Constraint("Coincident", 2, 3, 0, 3),
    Sketcher.Constraint("Coincident", 9, 3, 7, 3),
    Sketcher.Constraint("Coincident", 12, 3, 10, 3),
    Sketcher.Constraint("Coincident", 19, 3, 17, 3),
    Sketcher.Constraint("Equal", 2, 3),
    Sketcher.Constraint("Equal", 0, 5),
    Sketcher.Constraint("Equal", 5, 7),
    Sketcher.Constraint("Equal", 3, 9),
    Sketcher.Constraint("Equal", 7, 10),
    Sketcher.Constraint("Equal", 9, 12),
    Sketcher.Constraint("Equal", 12, 13),
    Sketcher.Constraint("Equal", 10, 15),
    Sketcher.Constraint("Equal", 15, 17),
    Sketcher.Constraint("Equal", 13, 19),
    Sketcher.Constraint("Symmetric", 7, 3, 10, 3, -1, 1),
    Sketcher.Constraint("Symmetric", 0, 3, 17, 3, -1, 1),
    Sketcher.Constraint("Symmetric", 0, 3, 7, 3, -2),
    Sketcher.Constraint("Horizontal", 9, 3, 0, 2),
    Sketcher.Constraint("Horizontal", 1, 2, 2, 1),
    Sketcher.Constraint("Horizontal", 2, 1, 5, 2),
    Sketcher.Constraint("Horizontal", 5, 2, 6, 2),
    Sketcher.Constraint("Horizontal", 19, 3, 12, 1),
    Sketcher.Constraint("Horizontal", 12, 1, 13, 1),
    Sketcher.Constraint("Horizontal", 14, 2, 15, 2),
    Sketcher.Constraint("Horizontal", 15, 2, 17, 2),
    Sketcher.Constraint("Vertical", 15, 3, 3, 1),
    Sketcher.Constraint("Vertical", 19, 3, 7, 2),
    Sketcher.Constraint("Vertical", 4, 2, 10, 2),
    Sketcher.Constraint("Vertical", 8, 2, 16, 2),
    Sketcher.Constraint("Radius", 0, Q("6 mm")),
    Sketcher.Constraint("Radius", 2, Q("4 mm")),
    Sketcher.Constraint("DistanceX", 7, 3, 0, 3, Q("65 mm")),
    Sketcher.Constraint("DistanceY", 10, 3, 0, 3, Q("65 mm")),
])
pad4 = doc.addObject("PartDesign::Pad", "Pad003")
body.addObject(pad4)
pad4.Profile = sketch5
pad4.Length = 38

# Sketch on XZ plane
sketch6 = doc.addObject("Sketcher::SketchObject", "Sketch005")
body.addObject(sketch6)
sketch6.AttachmentSupport = (doc.XZ_Plane, [""])
sketch6.MapMode = "FlatFace"
sketch6.addGeometry([
    Part.LineSegment(V(-24.019458, 32.5, 0), V(24.019458, 32.5, 0)),  # 0
    Part.LineSegment(V(24.019458, 32.5, 0), V(17, 25.813471, 0)),  # 1
    Part.LineSegment(V(17, 25.813471, 0), V(15.286096, 25.813471, 0)),  # 2
    Part.ArcOfCircle(Part.Circle(V(0, 0, 0), V(0, 0, 1), 30), math.radians(59.367037), math.radians(120.632963)),  # 3
    Part.LineSegment(V(-15.286096, 25.813471, 0), V(-17, 25.813471, 0)),  # 4
    Part.LineSegment(V(-17, 25.813471, 0), V(-24.019458, 32.5, 0)),  # 5
    Part.LineSegment(V(17, -25.813471, 0), V(24.019458, -32.5, 0)),  # 6
    Part.LineSegment(V(24.019458, -32.5, 0), V(-24.019458, -32.5, 0)),  # 7
    Part.LineSegment(V(-24.019458, -32.5, 0), V(-17, -25.813471, 0)),  # 8
    Part.LineSegment(V(-17, -25.813471, 0), V(-15.286096, -25.813471, 0)),  # 9
    Part.ArcOfCircle(Part.Circle(V(0, 0, 0), V(0, 0, 1), 30), math.radians(-120.632963), math.radians(-59.367037)),  # 10
    Part.LineSegment(V(15.286096, -25.813471, 0), V(17, -25.813471, 0)),  # 11
], False)
sketch6.addConstraint([
    Sketcher.Constraint("Coincident", 0, 2, 1, 1),
    Sketcher.Constraint("Coincident", 1, 2, 2, 1),
    Sketcher.Constraint("Coincident", 2, 2, 3, 1),
    Sketcher.Constraint("Coincident", 3, 2, 4, 1),
    Sketcher.Constraint("Coincident", 4, 2, 5, 1),
    Sketcher.Constraint("Coincident", 5, 2, 0, 1),
    Sketcher.Constraint("Coincident", 6, 2, 7, 1),
    Sketcher.Constraint("Coincident", 7, 2, 8, 1),
    Sketcher.Constraint("Coincident", 8, 2, 9, 1),
    Sketcher.Constraint("Coincident", 9, 2, 10, 1),
    Sketcher.Constraint("Coincident", 10, 2, 11, 1),
    Sketcher.Constraint("Coincident", 11, 2, 6, 1),
    Sketcher.Constraint("Horizontal", 0),
    Sketcher.Constraint("Horizontal", 2),
    Sketcher.Constraint("Horizontal", 4),
    Sketcher.Constraint("Horizontal", 7),
    Sketcher.Constraint("Horizontal", 9),
    Sketcher.Constraint("Horizontal", 11),
    Sketcher.Constraint("Coincident", 3, 3, -1, 1),
    Sketcher.Constraint("Coincident", 10, 3, -1, 1),
    Sketcher.Constraint("Equal", 3, 10),
    Sketcher.Constraint("Symmetric", 5, 2, 6, 2, -1, 1),
    Sketcher.Constraint("Symmetric", 1, 2, 8, 2, -1, 1),
    Sketcher.Constraint("Symmetric", 4, 2, 11, 2, -1, 1),
    Sketcher.Constraint("Symmetric", 1, 2, 4, 2, -2),
    Sketcher.Constraint("Parallel", 1, 8),
    Sketcher.Constraint("Vertical", 0, 2, 6, 2),
    Sketcher.Constraint("Radius", 3, Q("30 mm")),
    Sketcher.Constraint("DistanceX", -1, 1, 1, 2, Q("17 mm")),
    Sketcher.Constraint("DistanceY", 6, 2, 0, 2, Q("65 mm")),
    Sketcher.Constraint("DistanceX", 0, 1, 0, 2, Q("48.038916 mm")),
    Sketcher.Constraint("DistanceX", 2, 2, 2, 1, Q("1.713904 mm")),
])
pocket2 = doc.addObject("PartDesign::Pocket", "Pocket001")
body.addObject(pocket2)
pocket2.Profile = sketch6
pocket2.Length = 38
pocket2.Reversed = True

# Sketch on XZ plane
sketch7 = doc.addObject("Sketcher::SketchObject", "Sketch006")
body.addObject(sketch7)
sketch7.AttachmentSupport = (doc.XZ_Plane, [""])
sketch7.MapMode = "FlatFace"
sketch7.AttachmentOffset = App.Placement(V(0, 0, 38), App.Rotation())
sketch7.addGeometry([
    Part.Circle(V(-32.5, 32.5, 0), V(0, 0, 1), 4),
    Part.Circle(V(-32.5, -32.5, 0), V(0, 0, 1), 4),
], False)
sketch7.addConstraint([
    Sketcher.Constraint("Equal", 0, 1),
    Sketcher.Constraint("Symmetric", 0, 3, 1, 3, -1),
    Sketcher.Constraint("Diameter", 0, Q("8 mm")),
    Sketcher.Constraint("DistanceY", 1, 3, 0, 3, Q("65 mm")),
    Sketcher.Constraint("DistanceX", 0, 3, -1, 1, Q("32.5 mm")),
])
pocket3 = doc.addObject("PartDesign::Pocket", "Pocket002")
body.addObject(pocket3)
pocket3.Profile = sketch7
pocket3.Length = 38

doc.recompute()
